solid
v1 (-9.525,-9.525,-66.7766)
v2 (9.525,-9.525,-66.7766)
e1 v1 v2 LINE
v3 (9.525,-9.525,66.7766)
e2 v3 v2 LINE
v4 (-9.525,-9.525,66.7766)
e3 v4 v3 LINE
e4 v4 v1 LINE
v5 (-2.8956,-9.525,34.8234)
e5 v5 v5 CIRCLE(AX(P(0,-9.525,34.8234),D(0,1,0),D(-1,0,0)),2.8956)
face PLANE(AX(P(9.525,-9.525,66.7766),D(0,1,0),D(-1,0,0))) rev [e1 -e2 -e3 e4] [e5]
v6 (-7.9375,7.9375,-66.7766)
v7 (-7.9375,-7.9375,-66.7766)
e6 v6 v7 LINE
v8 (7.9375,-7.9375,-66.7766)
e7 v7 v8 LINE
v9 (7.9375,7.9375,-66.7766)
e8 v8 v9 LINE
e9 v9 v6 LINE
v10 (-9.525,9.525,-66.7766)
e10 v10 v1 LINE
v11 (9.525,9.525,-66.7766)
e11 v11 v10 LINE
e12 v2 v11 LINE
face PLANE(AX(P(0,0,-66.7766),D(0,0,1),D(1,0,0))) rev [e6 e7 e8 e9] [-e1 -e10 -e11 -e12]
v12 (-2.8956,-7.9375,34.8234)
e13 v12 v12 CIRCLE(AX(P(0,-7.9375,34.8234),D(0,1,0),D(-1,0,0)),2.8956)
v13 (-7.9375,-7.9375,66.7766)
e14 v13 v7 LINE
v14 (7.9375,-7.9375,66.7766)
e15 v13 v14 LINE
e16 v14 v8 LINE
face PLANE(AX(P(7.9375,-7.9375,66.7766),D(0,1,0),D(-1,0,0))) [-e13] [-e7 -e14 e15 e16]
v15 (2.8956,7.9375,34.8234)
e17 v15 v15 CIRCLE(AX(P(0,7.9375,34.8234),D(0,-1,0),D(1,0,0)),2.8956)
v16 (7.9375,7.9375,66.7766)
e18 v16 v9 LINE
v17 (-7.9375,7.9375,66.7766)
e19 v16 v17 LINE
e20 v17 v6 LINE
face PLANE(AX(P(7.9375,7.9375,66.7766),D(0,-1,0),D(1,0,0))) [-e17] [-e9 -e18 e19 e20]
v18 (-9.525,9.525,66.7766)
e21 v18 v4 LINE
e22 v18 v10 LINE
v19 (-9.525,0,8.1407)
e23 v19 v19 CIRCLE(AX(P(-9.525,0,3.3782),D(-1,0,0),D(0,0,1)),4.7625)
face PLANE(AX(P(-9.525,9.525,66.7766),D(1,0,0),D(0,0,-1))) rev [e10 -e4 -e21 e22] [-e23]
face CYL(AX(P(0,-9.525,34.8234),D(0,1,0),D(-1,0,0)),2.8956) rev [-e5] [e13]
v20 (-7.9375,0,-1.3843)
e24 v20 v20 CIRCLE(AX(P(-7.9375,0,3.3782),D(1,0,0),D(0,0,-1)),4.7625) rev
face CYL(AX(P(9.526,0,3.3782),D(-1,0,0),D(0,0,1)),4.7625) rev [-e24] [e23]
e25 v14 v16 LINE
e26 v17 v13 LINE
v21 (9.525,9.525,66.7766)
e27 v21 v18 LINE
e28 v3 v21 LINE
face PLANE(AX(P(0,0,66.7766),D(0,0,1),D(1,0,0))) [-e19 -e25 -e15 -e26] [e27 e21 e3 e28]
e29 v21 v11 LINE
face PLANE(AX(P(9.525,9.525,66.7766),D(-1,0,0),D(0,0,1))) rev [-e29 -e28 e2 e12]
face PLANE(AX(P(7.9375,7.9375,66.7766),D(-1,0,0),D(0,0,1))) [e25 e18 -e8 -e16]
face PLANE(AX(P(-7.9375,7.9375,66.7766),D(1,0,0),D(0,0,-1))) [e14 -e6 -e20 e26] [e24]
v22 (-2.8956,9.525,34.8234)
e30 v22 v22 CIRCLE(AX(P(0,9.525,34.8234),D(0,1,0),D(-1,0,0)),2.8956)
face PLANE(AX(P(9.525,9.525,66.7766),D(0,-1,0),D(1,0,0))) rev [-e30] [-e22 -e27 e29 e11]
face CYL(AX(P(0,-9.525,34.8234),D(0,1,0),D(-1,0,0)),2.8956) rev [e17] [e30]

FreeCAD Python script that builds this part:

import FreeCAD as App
import Part
import Sketcher
Q = App.Units.Quantity


def add_polygon(sketch, points):
    """Adds a closed chain of lines whose ends are joined by coincident constraints."""
    first, n = sketch.GeometryCount, len(points)
    for a, b in zip(points, points[1:] + points[:1]):
        sketch.addGeometry(Part.LineSegment(App.Vector(*a, 0), App.Vector(*b, 0)), False)
    for i in range(n):
        sketch.addConstraint(Sketcher.Constraint("Coincident", first + i, 2, first + (i + 1) % n, 1))

doc = App.newDocument("Part")
body = doc.addObject("PartDesign::Body", "Body")

# Sketch on XY plane
sketch1 = body.newObject("Sketcher::SketchObject", "Sketch")
sketch1.AttachmentSupport = (doc.getObject("XY_Plane"), [""])
sketch1.MapMode = "FlatFace"
add_polygon(sketch1, [(10, 10), (-10, 10), (-10, -10), (10, -10)])  # lines 0-3
add_polygon(sketch1, [(-8, -8), (-8, 8), (8, 8), (8, -8)])  # lines 4-7
sketch1.addConstraint(Sketcher.Constraint("Horizontal", 0))
sketch1.addConstraint(Sketcher.Constraint("Vertical", 1))
sketch1.addConstraint(Sketcher.Constraint("Horizontal", 2))
sketch1.addConstraint(Sketcher.Constraint("Vertical", 3))
sketch1.addConstraint(Sketcher.Constraint("Vertical", 4))
sketch1.addConstraint(Sketcher.Constraint("Horizontal", 5))
sketch1.addConstraint(Sketcher.Constraint("Vertical", 6))
sketch1.addConstraint(Sketcher.Constraint("Horizontal", 7))
sketch1.addConstraint(Sketcher.Constraint("Symmetric", 0, 2, 2, 2, -1, 1))
sketch1.addConstraint(Sketcher.Constraint("Symmetric", 4, 2, 6, 2, -1, 1))
sketch1.addConstraint(Sketcher.Constraint("Equal", 2, 1))
sketch1.addConstraint(Sketcher.Constraint("Equal", 7, 4))
sketch1.addConstraint(Sketcher.Constraint("DistanceX", 0, 2, 0, 1, Q("0.75 in")))
sketch1.addConstraint(Sketcher.Constraint("DistanceX", 5, 1, 5, 2, Q("0.625 in")))
pad1 = body.newObject("PartDesign::Pad", "Pad")
pad1.Profile = sketch1
pad1.Length = Q("5.258 in")
pad1.Midplane = True

# Sketch on XZ plane
sketch2 = body.newObject("Sketcher::SketchObject", "Sketch001")
sketch2.AttachmentSupport = (doc.getObject("XZ_Plane"), [""])
sketch2.MapMode = "FlatFace"
sketch2.AttachmentOffset = App.Placement(App.Vector(0, 0, -0.375 * 25.4), App.Rotation())
sketch2.addGeometry(Part.Circle(App.Vector(0, 34.8, 0), App.Vector(0, 0, 1), 2.9), False)
sketch2.addConstraint(Sketcher.Constraint("PointOnObject", 0, 3, -2))
sketch2.addConstraint(Sketcher.Constraint("Diameter", 0, Q("0.228 in")))
sketch2.addConstraint(Sketcher.Constraint("DistanceY", -1, 1, 0, 3, Q("1.371 in")))
pocket1 = body.newObject("PartDesign::Pocket", "Pocket")
pocket1.Profile = sketch2
pocket1.Type = "ThroughAll"
pocket1.Reversed = True

# Sketch on YZ plane
sketch3 = body.newObject("Sketcher::SketchObject", "Sketch002")
sketch3.AttachmentSupport = (doc.getObject("YZ_Plane"), [""])
sketch3.MapMode = "FlatFace"
sketch3.AttachmentOffset = App.Placement(App.Vector(0, 0, -0.375 * 25.4), App.Rotation())
sketch3.addGeometry(Part.Circle(App.Vector(0, 3.4, 0), App.Vector(0, 0, 1), 4.8), False)
sketch3.addConstraint(Sketcher.Constraint("PointOnObject", 0, 3, -2))
sketch3.addConstraint(Sketcher.Constraint("Diameter", 0, Q("0.375 in")))
sketch3.addConstraint(Sketcher.Constraint("DistanceY", -1, 1, 0, 3, Q("0.133 in")))
pocket2 = body.newObject("PartDesign::Pocket", "Pocket001")
pocket2.Profile = sketch3
pocket2.Type = "UpToFirst"
pocket2.Reversed = True

doc.recompute()
